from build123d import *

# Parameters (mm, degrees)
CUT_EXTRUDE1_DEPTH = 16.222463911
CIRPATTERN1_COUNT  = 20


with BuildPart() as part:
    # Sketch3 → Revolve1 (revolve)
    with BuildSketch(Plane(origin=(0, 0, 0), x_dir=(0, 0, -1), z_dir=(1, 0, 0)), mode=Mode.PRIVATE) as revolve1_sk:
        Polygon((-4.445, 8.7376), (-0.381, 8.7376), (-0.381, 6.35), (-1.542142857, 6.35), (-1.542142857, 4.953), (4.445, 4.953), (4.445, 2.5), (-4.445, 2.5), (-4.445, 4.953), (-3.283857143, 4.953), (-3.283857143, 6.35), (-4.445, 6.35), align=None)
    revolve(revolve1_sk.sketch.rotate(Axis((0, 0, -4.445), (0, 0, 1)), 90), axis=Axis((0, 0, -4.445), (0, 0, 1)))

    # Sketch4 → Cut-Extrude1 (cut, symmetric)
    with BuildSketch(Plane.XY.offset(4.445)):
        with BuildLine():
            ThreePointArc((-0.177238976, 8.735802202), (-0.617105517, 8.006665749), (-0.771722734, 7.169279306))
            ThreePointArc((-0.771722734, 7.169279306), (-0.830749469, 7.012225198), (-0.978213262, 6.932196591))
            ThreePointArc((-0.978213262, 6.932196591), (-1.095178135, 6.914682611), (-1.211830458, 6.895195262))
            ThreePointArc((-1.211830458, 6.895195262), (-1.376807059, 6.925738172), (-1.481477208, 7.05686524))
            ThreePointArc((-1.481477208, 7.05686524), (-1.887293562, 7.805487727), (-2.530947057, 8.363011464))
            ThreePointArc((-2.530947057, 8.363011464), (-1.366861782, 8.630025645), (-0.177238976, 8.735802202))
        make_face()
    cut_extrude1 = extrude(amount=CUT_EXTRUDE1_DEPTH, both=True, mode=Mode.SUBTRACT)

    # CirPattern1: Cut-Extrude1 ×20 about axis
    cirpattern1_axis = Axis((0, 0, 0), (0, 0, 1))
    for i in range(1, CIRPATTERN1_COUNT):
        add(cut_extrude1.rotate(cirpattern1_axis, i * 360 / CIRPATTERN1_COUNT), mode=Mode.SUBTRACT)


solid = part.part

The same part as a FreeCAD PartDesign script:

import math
import FreeCAD as App
import Part
import Sketcher

V = App.Vector
Q = App.Units.Quantity

doc = App.newDocument("Part")
body = doc.addObject("PartDesign::Body", "Body")

# Sketch on YZ plane
sketch1 = body.newObject("Sketcher::SketchObject", "Sketch")
sketch1.AttachmentSupport = (doc.getObject("YZ_Plane"), [""])
sketch1.MapMode = "FlatFace"
sketch1.addGeometry(Part.LineSegment(V(8.7, 0.4, 0), V(8.7, 4.4, 0)), False)
sketch1.addGeometry(Part.LineSegment(V(8.7, 4.4, 0), V(6.3, 4.4, 0)), False)
sketch1.addGeometry(Part.LineSegment(V(6.3, 4.4, 0), V(6.3, 3.3, 0)), False)
sketch1.addGeometry(Part.LineSegment(V(6.3, 3.3, 0), V(5, 3.3, 0)), False)
sketch1.addGeometry(Part.LineSegment(V(5, 3.3, 0), V(5, 4.4, 0)), False)
sketch1.addGeometry(Part.LineSegment(V(5, 4.4, 0), V(2.5, 4.4, 0)), False)
sketch1.addGeometry(Part.LineSegment(V(2.5, 4.4, 0), V(2.5, -4.4, 0)), False)
sketch1.addGeometry(Part.LineSegment(V(2.5, -4.4, 0), V(5, -4.4, 0)), False)
sketch1.addGeometry(Part.LineSegment(V(5, -4.4, 0), V(5, 1.5, 0)), False)
sketch1.addGeometry(Part.LineSegment(V(5, 1.5, 0), V(6.3, 1.5, 0)), False)
sketch1.addGeometry(Part.LineSegment(V(6.3, 1.5, 0), V(6.3, 0.4, 0)), False)
sketch1.addGeometry(Part.LineSegment(V(6.3, 0.4, 0), V(8.7, 0.4, 0)), False)
sketch1.addConstraint(Sketcher.Constraint("Coincident", 0, 2, 1, 1))
sketch1.addConstraint(Sketcher.Constraint("Coincident", 1, 2, 2, 1))
sketch1.addConstraint(Sketcher.Constraint("Coincident", 2, 2, 3, 1))
sketch1.addConstraint(Sketcher.Constraint("Coincident", 3, 2, 4, 1))
sketch1.addConstraint(Sketcher.Constraint("Coincident", 4, 2, 5, 1))
sketch1.addConstraint(Sketcher.Constraint("Coincident", 5, 2, 6, 1))
sketch1.addConstraint(Sketcher.Constraint("Coincident", 6, 2, 7, 1))
sketch1.addConstraint(Sketcher.Constraint("Coincident", 7, 2, 8, 1))
sketch1.addConstraint(Sketcher.Constraint("Coincident", 8, 2, 9, 1))
sketch1.addConstraint(Sketcher.Constraint("Coincident", 9, 2, 10, 1))
sketch1.addConstraint(Sketcher.Constraint("Coincident", 10, 2, 11, 1))
sketch1.addConstraint(Sketcher.Constraint("Coincident", 11, 2, 0, 1))
sketch1.addConstraint(Sketcher.Constraint("Vertical", 0))
sketch1.addConstraint(Sketcher.Constraint("Horizontal", 1))
sketch1.addConstraint(Sketcher.Constraint("Vertical", 2))
sketch1.addConstraint(Sketcher.Constraint("Horizontal", 3))
sketch1.addConstraint(Sketcher.Constraint("Vertical", 4))
sketch1.addConstraint(Sketcher.Constraint("Horizontal", 5))
sketch1.addConstraint(Sketcher.Constraint("Vertical", 6))
sketch1.addConstraint(Sketcher.Constraint("Horizontal", 7))
sketch1.addConstraint(Sketcher.Constraint("Vertical", 8))
sketch1.addConstraint(Sketcher.Constraint("Horizontal", 9))
sketch1.addConstraint(Sketcher.Constraint("Vertical", 10))
sketch1.addConstraint(Sketcher.Constraint("Horizontal", 11))
sketch1.addConstraint(Sketcher.Constraint("Symmetric", 4, 2, 7, 2, -1))
sketch1.addConstraint(Sketcher.Constraint("Horizontal", 1, 2, 4, 2))
sketch1.addConstraint(Sketcher.Constraint("Vertical", 2, 2, 9, 2))
sketch1.addConstraint(Sketcher.Constraint("Equal", 4, 10))
sketch1.addConstraint(Sketcher.Constraint("DistanceY", 0, 1, 0, 2, Q("0.16 in")))
sketch1.addConstraint(Sketcher.Constraint("DistanceY", 6, 2, 6, 1, Q("0.35 in")))
sketch1.addConstraint(Sketcher.Constraint("DistanceX", 1, 2, 1, 1, Q("0.094 in")))
sketch1.addConstraint(Sketcher.Constraint("DistanceX", 3, 2, 3, 1, Q("0.055 in")))
sketch1.addConstraint(Sketcher.Constraint("DistanceX", -1, 1, 1, 2, Q("0.25 in")))
sketch1.addConstraint(Sketcher.Constraint("DistanceX", 5, 2, 5, 1, Q("2.453 mm")))
sketch1.addConstraint(Sketcher.Constraint("DistanceY", 2, 2, 2, 1, Q("1.161143 mm")))
revolution = body.newObject("PartDesign::Revolution", "Revolution")
revolution.Profile = sketch1
revolution.ReferenceAxis = (sketch1, ["V_Axis"])
revolution.Angle = 360

# Sketch on XY plane
sketch2 = body.newObject("Sketcher::SketchObject", "Sketch001")
sketch2.AttachmentSupport = (doc.getObject("XY_Plane"), [""])
sketch2.MapMode = "FlatFace"
sketch2.AttachmentOffset = App.Placement(V(0, 0, 0.175 * 25.4), App.Rotation())
sketch2.addGeometry(Part.ArcOfCircle(Part.Circle(V(1.6, 7.16, 0), V(0, 0, 1), 2.38), math.radians(139), math.radians(180)), False)
sketch2.addGeometry(Part.ArcOfCircle(Part.Circle(V(0, 0, 0), V(0, 0, 1), 8.74), math.radians(91.16), math.radians(106.84)), False)
sketch2.addGeometry(Part.ArcOfCircle(Part.Circle(V(-3.74, 6.32, 0), V(0, 0, 1), 2.38), math.radians(18), math.radians(59)), False)
sketch2.addGeometry(Part.ArcOfCircle(Part.Circle(V(-1.25, 7.13, 0), V(0, 0, 1), 0.24), math.radians(-162), math.radians(-80)), False)
sketch2.addGeometry(Part.ArcOfCircle(Part.Circle(V(0, 0, 0), V(0, 0, 1), 7), math.radians(98.03), math.radians(99.97)), False)
sketch2.addGeometry(Part.ArcOfCircle(Part.Circle(V(-1.01, 7.17, 0), V(0, 0, 1), 0.24), math.radians(-82), math.radians(0)), False)
sketch2.addConstraint(Sketcher.Constraint("Coincident", 0, 1, 1, 1))
sketch2.addConstraint(Sketcher.Constraint("Coincident", 1, 2, 2, 2))
sketch2.addConstraint(Sketcher.Constraint("Tangent", 2, 1, 3, 1))
sketch2.addConstraint(Sketcher.Constraint("Tangent", 3, 2, 4, 2))
sketch2.addConstraint(Sketcher.Constraint("Tangent", 4, 1, 5, 1))
sketch2.addConstraint(Sketcher.Constraint("Tangent", 5, 2, 0, 2))
sketch2.addConstraint(Sketcher.Constraint("Coincident", 1, 3, -1, 1))
sketch2.addConstraint(Sketcher.Constraint("Coincident", 4, 3, -1, 1))
sketch2.addConstraint(Sketcher.Constraint("Equal", 0, 2))
sketch2.addConstraint(Sketcher.Constraint("Equal", 3, 5))
sketch2.addConstraint(Sketcher.Constraint("Radius", 1, Q("0.344 in")))
sketch2.addConstraint(Sketcher.Constraint("Radius", 0, Q("2.376682 mm")))
sketch2.addConstraint(Sketcher.Constraint("Radius", 3, Q("0.24003 mm")))
sketch2.addConstraint(Sketcher.Constraint("Radius", 4, Q("7.000876 mm")))
sketch2.addConstraint(Sketcher.Constraint("DistanceY", 2, 1, 0, 1, Q("0.0660999 in")))
sketch2.addConstraint(Sketcher.Constraint("DistanceY", -1, 1, 3, 3, Q("7.131602 mm")))
sketch2.addConstraint(Sketcher.Constraint("DistanceY", 3, 3, 0, 1, Q("1.6042 mm")))
sketch2.addConstraint(Sketcher.Constraint("DistanceX", 1, 2, 0, 3, Q("4.135899 mm")))
pocket1 = body.newObject("PartDesign::Pocket", "Pocket")
pocket1.Profile = sketch2
pocket1.Length = 32.444928
pocket1.Midplane = True
doc.recompute()

polarpattern = body.newObject("PartDesign::PolarPattern", "PolarPattern")
polarpattern.Originals = [pocket1]
polarpattern.Axis = (doc.getObject("Z_Axis"), [""])
polarpattern.Angle = 360
polarpattern.Occurrences = 20
body.Tip = polarpattern

doc.recompute()
